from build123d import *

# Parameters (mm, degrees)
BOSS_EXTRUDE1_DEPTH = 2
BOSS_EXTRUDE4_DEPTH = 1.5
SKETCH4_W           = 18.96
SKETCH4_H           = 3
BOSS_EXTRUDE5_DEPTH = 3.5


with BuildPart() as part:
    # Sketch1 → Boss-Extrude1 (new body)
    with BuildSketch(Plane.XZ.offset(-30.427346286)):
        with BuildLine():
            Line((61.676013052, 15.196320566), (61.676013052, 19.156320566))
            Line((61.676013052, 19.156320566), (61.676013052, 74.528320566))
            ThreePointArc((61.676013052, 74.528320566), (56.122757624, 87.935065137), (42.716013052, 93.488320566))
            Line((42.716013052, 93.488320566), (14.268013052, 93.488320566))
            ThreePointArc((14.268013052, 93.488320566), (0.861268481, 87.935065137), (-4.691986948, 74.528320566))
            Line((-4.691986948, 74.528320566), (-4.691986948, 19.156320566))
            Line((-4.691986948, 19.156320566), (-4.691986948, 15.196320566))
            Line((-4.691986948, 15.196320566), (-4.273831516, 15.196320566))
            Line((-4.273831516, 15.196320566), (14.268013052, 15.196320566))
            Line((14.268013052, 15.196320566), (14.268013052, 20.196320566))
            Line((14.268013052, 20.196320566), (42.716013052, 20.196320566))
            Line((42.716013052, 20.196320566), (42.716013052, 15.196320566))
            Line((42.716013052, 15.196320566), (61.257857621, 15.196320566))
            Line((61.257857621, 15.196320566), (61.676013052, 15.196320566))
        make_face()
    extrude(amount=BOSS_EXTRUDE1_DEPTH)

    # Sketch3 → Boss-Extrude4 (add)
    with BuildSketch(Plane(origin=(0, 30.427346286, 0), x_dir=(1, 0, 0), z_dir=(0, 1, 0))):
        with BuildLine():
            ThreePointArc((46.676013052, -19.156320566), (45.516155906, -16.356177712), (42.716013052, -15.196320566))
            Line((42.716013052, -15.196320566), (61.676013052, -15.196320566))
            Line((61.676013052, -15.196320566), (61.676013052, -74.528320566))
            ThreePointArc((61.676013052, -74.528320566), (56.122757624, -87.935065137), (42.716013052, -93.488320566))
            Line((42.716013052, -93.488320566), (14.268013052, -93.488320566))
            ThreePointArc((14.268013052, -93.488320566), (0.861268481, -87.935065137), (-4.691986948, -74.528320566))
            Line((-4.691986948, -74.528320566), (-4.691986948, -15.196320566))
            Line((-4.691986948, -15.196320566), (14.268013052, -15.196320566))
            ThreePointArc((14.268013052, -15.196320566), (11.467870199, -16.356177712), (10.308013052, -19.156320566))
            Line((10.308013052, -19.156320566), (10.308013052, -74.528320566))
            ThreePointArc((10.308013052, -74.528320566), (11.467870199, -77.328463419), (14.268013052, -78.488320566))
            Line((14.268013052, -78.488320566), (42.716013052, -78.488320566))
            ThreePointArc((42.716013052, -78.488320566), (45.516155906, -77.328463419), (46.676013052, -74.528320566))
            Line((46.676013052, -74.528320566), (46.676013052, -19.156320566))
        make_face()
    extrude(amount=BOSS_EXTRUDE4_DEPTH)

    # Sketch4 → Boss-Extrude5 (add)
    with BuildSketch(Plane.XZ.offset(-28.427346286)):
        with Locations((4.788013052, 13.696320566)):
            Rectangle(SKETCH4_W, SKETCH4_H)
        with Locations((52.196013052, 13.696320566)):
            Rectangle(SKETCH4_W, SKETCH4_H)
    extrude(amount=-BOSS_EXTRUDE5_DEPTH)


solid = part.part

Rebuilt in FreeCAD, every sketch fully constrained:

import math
import FreeCAD as App
import Part
import Sketcher

V = App.Vector
Q = App.Units.Quantity


def add_polygon(sketch, points):
    """Adds a closed chain of lines whose ends are joined by coincident constraints."""
    first, n = sketch.GeometryCount, len(points)
    for a, b in zip(points, points[1:] + points[:1]):
        sketch.addGeometry(Part.LineSegment(App.Vector(*a, 0), App.Vector(*b, 0)), False)
    for i in range(n):
        sketch.addConstraint(Sketcher.Constraint("Coincident", first + i, 2, first + (i + 1) % n, 1))

doc = App.newDocument("Part")
body = doc.addObject("PartDesign::Body", "Body")

sketch1 = body.newObject("Sketcher::SketchObject", "Sketch")
sketch1.AttachmentSupport = (doc.getObject("XZ_Plane"), [""])
sketch1.MapMode = "FlatFace"
sketch1.AttachmentOffset = App.Placement(V(0, 0, -30.427346), App.Rotation())
sketch1.addGeometry(Part.LineSegment(V(62, 15, 0), V(62, 75, 0)), False)
sketch1.addGeometry(Part.ArcOfCircle(Part.Circle(V(43, 75, 0), V(0, 0, 1), 19), math.radians(0), math.radians(90)), False)
sketch1.addGeometry(Part.LineSegment(V(43, 93, 0), V(14, 93, 0)), False)
sketch1.addGeometry(Part.ArcOfCircle(Part.Circle(V(14, 75, 0), V(0, 0, 1), 19), math.radians(90), math.radians(180)), False)
sketch1.addGeometry(Part.LineSegment(V(-5, 75, 0), V(-5, 15, 0)), False)
sketch1.addGeometry(Part.LineSegment(V(-5, 15, 0), V(14, 15, 0)), False)
sketch1.addGeometry(Part.LineSegment(V(14, 15, 0), V(14, 20, 0)), False)
sketch1.addGeometry(Part.LineSegment(V(14, 20, 0), V(43, 20, 0)), False)
sketch1.addGeometry(Part.LineSegment(V(43, 20, 0), V(43, 15, 0)), False)
sketch1.addGeometry(Part.LineSegment(V(43, 15, 0), V(62, 15, 0)), False)
sketch1.addConstraint(Sketcher.Constraint("Tangent", 0, 2, 1, 1))
sketch1.addConstraint(Sketcher.Constraint("Tangent", 1, 2, 2, 1))
sketch1.addConstraint(Sketcher.Constraint("Tangent", 2, 2, 3, 1))
sketch1.addConstraint(Sketcher.Constraint("Tangent", 3, 2, 4, 1))
sketch1.addConstraint(Sketcher.Constraint("Coincident", 4, 2, 5, 1))
sketch1.addConstraint(Sketcher.Constraint("Coincident", 5, 2, 6, 1))
sketch1.addConstraint(Sketcher.Constraint("Coincident", 6, 2, 7, 1))
sketch1.addConstraint(Sketcher.Constraint("Coincident", 7, 2, 8, 1))
sketch1.addConstraint(Sketcher.Constraint("Coincident", 8, 2, 9, 1))
sketch1.addConstraint(Sketcher.Constraint("Coincident", 9, 2, 0, 1))
sketch1.addConstraint(Sketcher.Constraint("Vertical", 0))
sketch1.addConstraint(Sketcher.Constraint("Horizontal", 2))
sketch1.addConstraint(Sketcher.Constraint("Vertical", 4))
sketch1.addConstraint(Sketcher.Constraint("Horizontal", 5))
sketch1.addConstraint(Sketcher.Constraint("Vertical", 6))
sketch1.addConstraint(Sketcher.Constraint("Horizontal", 7))
sketch1.addConstraint(Sketcher.Constraint("Vertical", 8))
sketch1.addConstraint(Sketcher.Constraint("Horizontal", 9))
sketch1.addConstraint(Sketcher.Constraint("Equal", 1, 3))
sketch1.addConstraint(Sketcher.Constraint("Horizontal", 5, 2, 8, 2))
sketch1.addConstraint(Sketcher.Constraint("Vertical", 2, 2, 5, 2))
sketch1.addConstraint(Sketcher.Constraint("Vertical", 1, 2, 7, 2))
sketch1.addConstraint(Sketcher.Constraint("DistanceY", 6, 1, 6, 2, Q("5 mm")))
sketch1.addConstraint(Sketcher.Constraint("Radius", 1, Q("18.96 mm")))
sketch1.addConstraint(Sketcher.Constraint("DistanceX", 2, 2, 2, 1, Q("28.448 mm")))
sketch1.addConstraint(Sketcher.Constraint("DistanceY", 0, 1, 0, 2, Q("59.332 mm")))
sketch1.addConstraint(Sketcher.Constraint("DistanceY", -1, 1, 1, 3, Q("74.528321 mm")))
sketch1.addConstraint(Sketcher.Constraint("DistanceX", -1, 1, 1, 3, Q("42.716013 mm")))
pad1 = body.newObject("PartDesign::Pad", "Pad")
pad1.Profile = sketch1
pad1.Length = 2

sketch2 = body.newObject("Sketcher::SketchObject", "Sketch001")
sketch2.AttachmentSupport = (doc.getObject("XZ_Plane"), [""])
sketch2.MapMode = "FlatFace"
sketch2.AttachmentOffset = App.Placement(V(0, 0, -30.427346), App.Rotation())
sketch2.addGeometry(Part.ArcOfCircle(Part.Circle(V(42.7, 19.2, 0), V(0, 0, 1), 4), math.radians(-90), math.radians(0)), False)
sketch2.addGeometry(Part.LineSegment(V(46.7, 19.2, 0), V(46.7, 74.5, 0)), False)
sketch2.addGeometry(Part.ArcOfCircle(Part.Circle(V(42.7, 74.5, 0), V(0, 0, 1), 4), math.radians(0), math.radians(90)), False)
sketch2.addGeometry(Part.LineSegment(V(42.7, 78.5, 0), V(14.3, 78.5, 0)), False)
sketch2.addGeometry(Part.ArcOfCircle(Part.Circle(V(14.3, 74.5, 0), V(0, 0, 1), 4), math.radians(90), math.radians(180)), False)
sketch2.addGeometry(Part.LineSegment(V(10.3, 74.5, 0), V(10.3, 19.2, 0)), False)
sketch2.addGeometry(Part.ArcOfCircle(Part.Circle(V(14.3, 19.2, 0), V(0, 0, 1), 4), math.radians(180), math.radians(270)), False)
sketch2.addGeometry(Part.LineSegment(V(14.3, 15.2, 0), V(-4.7, 15.2, 0)), False)
sketch2.addGeometry(Part.LineSegment(V(-4.7, 15.2, 0), V(-4.7, 74.5, 0)), False)
sketch2.addGeometry(Part.ArcOfCircle(Part.Circle(V(14.3, 74.5, 0), V(0, 0, 1), 19), math.radians(90), math.radians(180)), False)
sketch2.addGeometry(Part.LineSegment(V(14.3, 93.5, 0), V(42.7, 93.5, 0)), False)
sketch2.addGeometry(Part.ArcOfCircle(Part.Circle(V(42.7, 74.5, 0), V(0, 0, 1), 19), math.radians(0), math.radians(90)), False)
sketch2.addGeometry(Part.LineSegment(V(61.7, 74.5, 0), V(61.7, 15.2, 0)), False)
sketch2.addGeometry(Part.LineSegment(V(61.7, 15.2, 0), V(42.7, 15.2, 0)), False)
sketch2.addConstraint(Sketcher.Constraint("Tangent", 0, 2, 1, 1))
sketch2.addConstraint(Sketcher.Constraint("Tangent", 1, 2, 2, 1))
sketch2.addConstraint(Sketcher.Constraint("Tangent", 2, 2, 3, 1))
sketch2.addConstraint(Sketcher.Constraint("Tangent", 3, 2, 4, 1))
sketch2.addConstraint(Sketcher.Constraint("Tangent", 4, 2, 5, 1))
sketch2.addConstraint(Sketcher.Constraint("Tangent", 5, 2, 6, 1))
sketch2.addConstraint(Sketcher.Constraint("Tangent", 6, 2, 7, 1))
sketch2.addConstraint(Sketcher.Constraint("Coincident", 7, 2, 8, 1))
sketch2.addConstraint(Sketcher.Constraint("Tangent", 8, 2, 9, 2))
sketch2.addConstraint(Sketcher.Constraint("Tangent", 9, 1, 10, 1))
sketch2.addConstraint(Sketcher.Constraint("Tangent", 10, 2, 11, 2))
sketch2.addConstraint(Sketcher.Constraint("Tangent", 11, 1, 12, 1))
sketch2.addConstraint(Sketcher.Constraint("Coincident", 12, 2, 13, 1))
sketch2.addConstraint(Sketcher.Constraint("Tangent", 13, 2, 0, 1))
sketch2.addConstraint(Sketcher.Constraint("Vertical", 1))
sketch2.addConstraint(Sketcher.Constraint("Horizontal", 3))
sketch2.addConstraint(Sketcher.Constraint("Vertical", 5))
sketch2.addConstraint(Sketcher.Constraint("Horizontal", 7))
sketch2.addConstraint(Sketcher.Constraint("Vertical", 8))
sketch2.addConstraint(Sketcher.Constraint("Horizontal", 10))
sketch2.addConstraint(Sketcher.Constraint("Vertical", 12))
sketch2.addConstraint(Sketcher.Constraint("Horizontal", 13))
sketch2.addConstraint(Sketcher.Constraint("Coincident", 9, 3, 4, 3))
sketch2.addConstraint(Sketcher.Constraint("Coincident", 11, 3, 2, 3))
sketch2.addConstraint(Sketcher.Constraint("Equal", 0, 2))
sketch2.addConstraint(Sketcher.Constraint("Equal", 2, 4))
sketch2.addConstraint(Sketcher.Constraint("Equal", 4, 6))
sketch2.addConstraint(Sketcher.Constraint("Horizontal", 0, 3, 6, 3))
sketch2.addConstraint(Sketcher.Constraint("Radius", 0, Q("3.96 mm")))
sketch2.addConstraint(Sketcher.Constraint("Radius", 9, Q("18.96 mm")))
sketch2.addConstraint(Sketcher.Constraint("DistanceX", 3, 2, 3, 1, Q("28.448 mm")))
sketch2.addConstraint(Sketcher.Constraint("DistanceY", 1, 1, 1, 2, Q("55.372 mm")))
sketch2.addConstraint(Sketcher.Constraint("DistanceY", -1, 1, 0, 3, Q("19.156321 mm")))
sketch2.addConstraint(Sketcher.Constraint("DistanceX", -1, 1, 0, 3, Q("42.716013 mm")))
pad2 = body.newObject("PartDesign::Pad", "Pad001")
pad2.Profile = sketch2
pad2.Length = 1.5
pad2.Reversed = True

sketch3 = body.newObject("Sketcher::SketchObject", "Sketch002")
sketch3.AttachmentSupport = (doc.getObject("XZ_Plane"), [""])
sketch3.MapMode = "FlatFace"
sketch3.AttachmentOffset = App.Placement(V(0, 0, -28.427346), App.Rotation())
add_polygon(sketch3, [(-4.7, 15.2), (-4.7, 12.2), (14.3, 12.2), (14.3, 15.2)])
add_polygon(sketch3, [(42.7, 15.2), (42.7, 12.2), (61.7, 12.2), (61.7, 15.2)])
sketch3.addConstraint(Sketcher.Constraint("Vertical", 0))
sketch3.addConstraint(Sketcher.Constraint("Horizontal", 1))
sketch3.addConstraint(Sketcher.Constraint("Vertical", 2))
sketch3.addConstraint(Sketcher.Constraint("Horizontal", 3))
sketch3.addConstraint(Sketcher.Constraint("Vertical", 4))
sketch3.addConstraint(Sketcher.Constraint("Horizontal", 5))
sketch3.addConstraint(Sketcher.Constraint("Vertical", 6))
sketch3.addConstraint(Sketcher.Constraint("Horizontal", 7))
sketch3.addConstraint(Sketcher.Constraint("Horizontal", 1, 2, 4, 2))
sketch3.addConstraint(Sketcher.Constraint("Horizontal", 3, 2, 6, 2))
sketch3.addConstraint(Sketcher.Constraint("Equal", 3, 5))
sketch3.addConstraint(Sketcher.Constraint("DistanceY", 0, 2, 0, 1, Q("3 mm")))
sketch3.addConstraint(Sketcher.Constraint("DistanceX", 1, 1, 1, 2, Q("18.96 mm")))
sketch3.addConstraint(Sketcher.Constraint("DistanceX", 1, 2, 4, 2, Q("28.448 mm")))
sketch3.addConstraint(Sketcher.Constraint("DistanceY", -1, 1, 0, 2, Q("12.196321 mm")))
sketch3.addConstraint(Sketcher.Constraint("DistanceX", 0, 2, -1, 1, Q("4.691987 mm")))
pad3 = body.newObject("PartDesign::Pad", "Pad002")
pad3.Profile = sketch3
pad3.Length = 3.5
pad3.Reversed = True

doc.recompute()
